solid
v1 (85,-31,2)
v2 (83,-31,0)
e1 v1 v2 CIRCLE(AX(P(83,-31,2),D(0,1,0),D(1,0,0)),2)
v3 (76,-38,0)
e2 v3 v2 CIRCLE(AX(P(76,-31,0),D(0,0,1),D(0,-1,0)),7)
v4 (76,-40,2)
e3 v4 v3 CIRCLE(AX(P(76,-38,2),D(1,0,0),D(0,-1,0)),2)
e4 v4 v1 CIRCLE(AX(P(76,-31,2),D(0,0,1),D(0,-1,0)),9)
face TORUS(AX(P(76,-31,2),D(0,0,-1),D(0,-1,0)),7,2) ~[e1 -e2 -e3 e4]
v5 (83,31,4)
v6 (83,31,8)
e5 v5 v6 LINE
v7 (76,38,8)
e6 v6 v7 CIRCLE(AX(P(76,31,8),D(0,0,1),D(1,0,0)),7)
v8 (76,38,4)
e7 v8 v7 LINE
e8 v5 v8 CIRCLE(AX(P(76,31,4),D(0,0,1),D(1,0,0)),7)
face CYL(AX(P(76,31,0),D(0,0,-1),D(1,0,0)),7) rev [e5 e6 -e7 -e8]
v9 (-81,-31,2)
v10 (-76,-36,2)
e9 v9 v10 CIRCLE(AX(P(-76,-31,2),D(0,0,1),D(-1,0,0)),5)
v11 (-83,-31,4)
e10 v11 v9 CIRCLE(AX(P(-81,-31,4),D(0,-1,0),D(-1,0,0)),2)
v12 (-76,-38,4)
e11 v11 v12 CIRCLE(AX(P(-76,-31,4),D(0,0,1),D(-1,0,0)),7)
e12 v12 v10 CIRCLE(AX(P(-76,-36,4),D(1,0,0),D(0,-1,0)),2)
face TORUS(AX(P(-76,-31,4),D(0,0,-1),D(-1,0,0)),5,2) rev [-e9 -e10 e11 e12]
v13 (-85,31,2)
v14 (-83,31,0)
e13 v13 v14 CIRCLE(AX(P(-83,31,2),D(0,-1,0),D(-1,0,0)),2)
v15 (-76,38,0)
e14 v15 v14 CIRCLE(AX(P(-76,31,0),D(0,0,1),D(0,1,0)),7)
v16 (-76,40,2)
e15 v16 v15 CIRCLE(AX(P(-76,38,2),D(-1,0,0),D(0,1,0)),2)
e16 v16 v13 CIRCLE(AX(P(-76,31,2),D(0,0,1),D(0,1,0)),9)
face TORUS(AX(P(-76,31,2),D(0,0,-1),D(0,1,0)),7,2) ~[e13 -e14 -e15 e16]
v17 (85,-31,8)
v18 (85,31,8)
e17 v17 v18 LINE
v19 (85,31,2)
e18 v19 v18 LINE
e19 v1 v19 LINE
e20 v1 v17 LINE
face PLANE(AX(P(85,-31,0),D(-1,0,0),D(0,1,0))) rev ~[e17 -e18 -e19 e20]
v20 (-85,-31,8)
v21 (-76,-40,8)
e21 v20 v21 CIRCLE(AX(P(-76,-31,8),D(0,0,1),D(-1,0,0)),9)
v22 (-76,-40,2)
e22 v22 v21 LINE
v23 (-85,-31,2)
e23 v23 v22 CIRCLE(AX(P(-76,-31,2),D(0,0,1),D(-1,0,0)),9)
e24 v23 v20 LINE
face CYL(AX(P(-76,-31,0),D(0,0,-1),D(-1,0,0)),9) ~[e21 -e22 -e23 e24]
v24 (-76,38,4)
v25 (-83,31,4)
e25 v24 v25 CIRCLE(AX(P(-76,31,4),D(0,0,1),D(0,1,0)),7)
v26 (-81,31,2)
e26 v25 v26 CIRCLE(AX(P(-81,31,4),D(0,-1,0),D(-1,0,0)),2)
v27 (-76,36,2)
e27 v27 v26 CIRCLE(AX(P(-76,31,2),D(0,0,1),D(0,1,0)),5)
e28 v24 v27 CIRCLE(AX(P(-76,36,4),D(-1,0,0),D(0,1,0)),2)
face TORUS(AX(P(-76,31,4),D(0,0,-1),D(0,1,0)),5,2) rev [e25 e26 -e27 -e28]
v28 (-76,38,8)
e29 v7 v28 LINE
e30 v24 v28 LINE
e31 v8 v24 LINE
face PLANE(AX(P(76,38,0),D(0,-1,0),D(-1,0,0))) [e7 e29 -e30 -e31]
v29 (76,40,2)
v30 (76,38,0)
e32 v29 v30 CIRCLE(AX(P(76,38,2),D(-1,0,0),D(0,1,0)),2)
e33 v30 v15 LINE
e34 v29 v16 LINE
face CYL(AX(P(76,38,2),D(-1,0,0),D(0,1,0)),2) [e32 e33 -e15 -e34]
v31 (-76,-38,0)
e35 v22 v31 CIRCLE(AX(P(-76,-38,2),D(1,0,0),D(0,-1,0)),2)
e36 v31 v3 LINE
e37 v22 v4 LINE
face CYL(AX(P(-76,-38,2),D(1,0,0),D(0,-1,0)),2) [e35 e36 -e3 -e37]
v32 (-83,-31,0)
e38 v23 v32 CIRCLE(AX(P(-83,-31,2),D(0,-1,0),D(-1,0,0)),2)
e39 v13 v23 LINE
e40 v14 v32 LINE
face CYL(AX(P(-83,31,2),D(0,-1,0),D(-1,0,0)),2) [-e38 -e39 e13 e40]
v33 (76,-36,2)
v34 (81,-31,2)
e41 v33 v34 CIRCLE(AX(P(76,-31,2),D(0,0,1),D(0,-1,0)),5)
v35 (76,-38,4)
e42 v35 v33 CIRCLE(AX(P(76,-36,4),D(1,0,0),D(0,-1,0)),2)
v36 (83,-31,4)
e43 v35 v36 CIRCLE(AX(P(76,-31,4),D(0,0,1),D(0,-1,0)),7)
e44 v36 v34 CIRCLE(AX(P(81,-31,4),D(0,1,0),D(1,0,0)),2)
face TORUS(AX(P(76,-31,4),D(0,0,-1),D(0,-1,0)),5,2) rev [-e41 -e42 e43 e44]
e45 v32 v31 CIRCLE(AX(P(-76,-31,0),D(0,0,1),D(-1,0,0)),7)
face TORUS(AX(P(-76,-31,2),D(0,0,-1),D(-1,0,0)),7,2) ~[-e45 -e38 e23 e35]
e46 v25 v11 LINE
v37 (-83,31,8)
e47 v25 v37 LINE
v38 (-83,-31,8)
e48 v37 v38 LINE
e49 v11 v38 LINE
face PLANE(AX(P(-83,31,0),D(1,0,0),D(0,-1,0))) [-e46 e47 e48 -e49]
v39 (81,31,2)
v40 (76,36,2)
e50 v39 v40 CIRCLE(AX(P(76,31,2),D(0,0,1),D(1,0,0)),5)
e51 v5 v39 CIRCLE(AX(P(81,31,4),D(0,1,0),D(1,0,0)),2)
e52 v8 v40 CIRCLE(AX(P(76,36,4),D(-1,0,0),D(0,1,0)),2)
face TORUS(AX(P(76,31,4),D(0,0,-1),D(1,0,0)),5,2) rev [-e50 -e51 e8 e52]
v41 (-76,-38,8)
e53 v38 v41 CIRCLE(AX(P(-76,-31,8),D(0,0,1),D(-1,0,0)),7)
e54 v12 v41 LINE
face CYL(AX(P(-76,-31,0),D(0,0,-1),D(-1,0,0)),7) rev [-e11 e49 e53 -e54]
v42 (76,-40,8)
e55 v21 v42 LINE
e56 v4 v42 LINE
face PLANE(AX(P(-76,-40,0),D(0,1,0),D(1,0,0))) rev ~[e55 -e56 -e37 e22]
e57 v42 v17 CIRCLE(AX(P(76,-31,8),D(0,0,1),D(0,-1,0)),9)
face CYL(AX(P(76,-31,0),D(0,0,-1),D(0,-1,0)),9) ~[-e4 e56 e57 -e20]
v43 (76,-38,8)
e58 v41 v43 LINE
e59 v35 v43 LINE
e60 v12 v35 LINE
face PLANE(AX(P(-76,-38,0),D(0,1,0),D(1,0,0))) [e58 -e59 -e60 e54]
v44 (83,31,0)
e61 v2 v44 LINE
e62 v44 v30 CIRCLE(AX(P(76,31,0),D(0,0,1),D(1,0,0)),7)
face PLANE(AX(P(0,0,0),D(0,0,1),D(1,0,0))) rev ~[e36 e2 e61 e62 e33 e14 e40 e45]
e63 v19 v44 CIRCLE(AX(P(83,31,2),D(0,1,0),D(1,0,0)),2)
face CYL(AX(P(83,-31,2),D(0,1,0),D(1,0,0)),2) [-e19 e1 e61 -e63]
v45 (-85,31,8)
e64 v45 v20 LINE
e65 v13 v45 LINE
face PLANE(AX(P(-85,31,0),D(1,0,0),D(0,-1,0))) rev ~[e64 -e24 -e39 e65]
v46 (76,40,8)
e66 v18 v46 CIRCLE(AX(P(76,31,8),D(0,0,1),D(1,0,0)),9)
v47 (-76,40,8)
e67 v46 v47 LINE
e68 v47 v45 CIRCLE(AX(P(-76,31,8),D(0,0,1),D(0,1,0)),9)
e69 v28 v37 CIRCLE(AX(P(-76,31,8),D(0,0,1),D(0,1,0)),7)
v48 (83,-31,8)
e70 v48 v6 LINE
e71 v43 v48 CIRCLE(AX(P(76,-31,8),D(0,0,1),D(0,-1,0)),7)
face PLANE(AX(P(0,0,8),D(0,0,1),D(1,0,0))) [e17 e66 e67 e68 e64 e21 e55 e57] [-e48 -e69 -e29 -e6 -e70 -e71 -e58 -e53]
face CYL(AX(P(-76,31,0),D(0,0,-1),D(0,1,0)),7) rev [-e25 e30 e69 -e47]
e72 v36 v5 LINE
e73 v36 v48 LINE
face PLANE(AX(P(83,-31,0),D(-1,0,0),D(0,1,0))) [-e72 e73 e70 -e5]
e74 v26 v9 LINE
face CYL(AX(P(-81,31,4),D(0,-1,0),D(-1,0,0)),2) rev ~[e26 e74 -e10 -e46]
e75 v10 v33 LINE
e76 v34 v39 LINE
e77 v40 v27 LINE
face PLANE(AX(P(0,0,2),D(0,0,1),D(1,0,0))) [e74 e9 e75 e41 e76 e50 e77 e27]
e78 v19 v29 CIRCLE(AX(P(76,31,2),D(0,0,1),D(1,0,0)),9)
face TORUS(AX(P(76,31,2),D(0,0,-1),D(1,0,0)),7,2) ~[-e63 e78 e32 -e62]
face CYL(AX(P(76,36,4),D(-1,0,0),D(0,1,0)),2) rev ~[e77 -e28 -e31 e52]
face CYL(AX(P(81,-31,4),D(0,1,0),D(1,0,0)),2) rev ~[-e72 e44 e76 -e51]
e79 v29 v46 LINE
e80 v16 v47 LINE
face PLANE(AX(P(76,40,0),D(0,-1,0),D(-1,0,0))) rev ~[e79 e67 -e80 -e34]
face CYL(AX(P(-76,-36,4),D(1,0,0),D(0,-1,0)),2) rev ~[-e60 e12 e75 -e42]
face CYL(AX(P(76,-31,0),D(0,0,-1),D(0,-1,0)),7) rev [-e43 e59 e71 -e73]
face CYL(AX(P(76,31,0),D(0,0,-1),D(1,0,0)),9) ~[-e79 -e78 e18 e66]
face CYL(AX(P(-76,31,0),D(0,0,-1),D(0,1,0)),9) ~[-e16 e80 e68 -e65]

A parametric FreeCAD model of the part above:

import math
import FreeCAD as App
import Part
import Sketcher
Q = App.Units.Quantity


def edges_at(feature, points):
    """Names of the edges that pass closest to the given points."""
    edges = feature.Shape.Edges
    near = lambda p: min(range(len(edges)), key=lambda i: edges[i].distToShape(Part.Vertex(*p))[0])
    return sorted({f"Edge{near(p) + 1}" for p in points})


def faces_at(feature, points):
    """Names of the faces that lie closest to the given points."""
    faces = feature.Shape.Faces
    near = lambda p: min(range(len(faces)), key=lambda i: faces[i].distToShape(Part.Vertex(*p))[0])
    return sorted({f"Face{near(p) + 1}" for p in points})

doc = App.newDocument("Part")
body = doc.addObject("PartDesign::Body", "Body")

# Sketch on XY plane
sketch1 = doc.addObject("Sketcher::SketchObject", "Sketch")
body.addObject(sketch1)
sketch1.AttachmentSupport = (doc.XY_Plane, [""])
sketch1.MapMode = "FlatFace"
sketch1.addGeometry([
    Part.ArcOfCircle(Part.Circle(App.Vector(-76, -31, 0), App.Vector(0, 0, 1), 9), math.radians(180), math.radians(270)),  # 0
    Part.LineSegment(App.Vector(-76, -40, 0), App.Vector(76, -40, 0)),  # 1
    Part.ArcOfCircle(Part.Circle(App.Vector(76, -31, 0), App.Vector(0, 0, 1), 9), math.radians(-90), math.radians(0)),  # 2
    Part.LineSegment(App.Vector(85, -31, 0), App.Vector(85, 31, 0)),  # 3
    Part.ArcOfCircle(Part.Circle(App.Vector(76, 31, 0), App.Vector(0, 0, 1), 9), math.radians(0), math.radians(90)),  # 4
    Part.LineSegment(App.Vector(76, 40, 0), App.Vector(-76, 40, 0)),  # 5
    Part.ArcOfCircle(Part.Circle(App.Vector(-76, 31, 0), App.Vector(0, 0, 1), 9), math.radians(90), math.radians(180)),  # 6
    Part.LineSegment(App.Vector(-85, 31, 0), App.Vector(-85, -31, 0)),  # 7
], False)
sketch1.addConstraint([
    Sketcher.Constraint("Tangent", 0, 2, 1, 1),
    Sketcher.Constraint("Tangent", 1, 2, 2, 1),
    Sketcher.Constraint("Tangent", 2, 2, 3, 1),
    Sketcher.Constraint("Tangent", 3, 2, 4, 1),
    Sketcher.Constraint("Tangent", 4, 2, 5, 1),
    Sketcher.Constraint("Tangent", 5, 2, 6, 1),
    Sketcher.Constraint("Tangent", 6, 2, 7, 1),
    Sketcher.Constraint("Tangent", 7, 2, 0, 1),
    Sketcher.Constraint("Horizontal", 1),
    Sketcher.Constraint("Vertical", 3),
    Sketcher.Constraint("Horizontal", 5),
    Sketcher.Constraint("Vertical", 7),
    Sketcher.Constraint("Equal", 0, 2),
    Sketcher.Constraint("Equal", 2, 4),
    Sketcher.Constraint("Equal", 4, 6),
    Sketcher.Constraint("Symmetric", 0, 3, 4, 3, -1, 1),
    Sketcher.Constraint("Radius", 0, Q("9 mm")),
    Sketcher.Constraint("DistanceX", 1, 1, 1, 2, Q("152 mm")),
    Sketcher.Constraint("DistanceY", 3, 1, 3, 2, Q("62 mm")),
])
pad1 = doc.addObject("PartDesign::Pad", "Pad")
body.addObject(pad1)
pad1.Profile = sketch1
pad1.Length = 8
doc.recompute()

thickness = doc.addObject("PartDesign::Thickness", "Thickness")
body.addObject(thickness)
thickness.Base = (pad1, faces_at(pad1, [(0, 0, 8)]))
thickness.Value = 2
thickness.Reversed = True
thickness.Join = "Arc"
doc.recompute()

fillet = doc.addObject("PartDesign::Fillet", "Fillet")
body.addObject(fillet)
fillet.Base = (thickness, edges_at(thickness, [(0, 38, 2)]))
fillet.Radius = 2
doc.recompute()

fillet2 = doc.addObject("PartDesign::Fillet", "Fillet001")
body.addObject(fillet2)
fillet2.Base = (fillet, edges_at(fillet, [(0, -40, 0)]))
fillet2.Radius = 2

doc.recompute()
